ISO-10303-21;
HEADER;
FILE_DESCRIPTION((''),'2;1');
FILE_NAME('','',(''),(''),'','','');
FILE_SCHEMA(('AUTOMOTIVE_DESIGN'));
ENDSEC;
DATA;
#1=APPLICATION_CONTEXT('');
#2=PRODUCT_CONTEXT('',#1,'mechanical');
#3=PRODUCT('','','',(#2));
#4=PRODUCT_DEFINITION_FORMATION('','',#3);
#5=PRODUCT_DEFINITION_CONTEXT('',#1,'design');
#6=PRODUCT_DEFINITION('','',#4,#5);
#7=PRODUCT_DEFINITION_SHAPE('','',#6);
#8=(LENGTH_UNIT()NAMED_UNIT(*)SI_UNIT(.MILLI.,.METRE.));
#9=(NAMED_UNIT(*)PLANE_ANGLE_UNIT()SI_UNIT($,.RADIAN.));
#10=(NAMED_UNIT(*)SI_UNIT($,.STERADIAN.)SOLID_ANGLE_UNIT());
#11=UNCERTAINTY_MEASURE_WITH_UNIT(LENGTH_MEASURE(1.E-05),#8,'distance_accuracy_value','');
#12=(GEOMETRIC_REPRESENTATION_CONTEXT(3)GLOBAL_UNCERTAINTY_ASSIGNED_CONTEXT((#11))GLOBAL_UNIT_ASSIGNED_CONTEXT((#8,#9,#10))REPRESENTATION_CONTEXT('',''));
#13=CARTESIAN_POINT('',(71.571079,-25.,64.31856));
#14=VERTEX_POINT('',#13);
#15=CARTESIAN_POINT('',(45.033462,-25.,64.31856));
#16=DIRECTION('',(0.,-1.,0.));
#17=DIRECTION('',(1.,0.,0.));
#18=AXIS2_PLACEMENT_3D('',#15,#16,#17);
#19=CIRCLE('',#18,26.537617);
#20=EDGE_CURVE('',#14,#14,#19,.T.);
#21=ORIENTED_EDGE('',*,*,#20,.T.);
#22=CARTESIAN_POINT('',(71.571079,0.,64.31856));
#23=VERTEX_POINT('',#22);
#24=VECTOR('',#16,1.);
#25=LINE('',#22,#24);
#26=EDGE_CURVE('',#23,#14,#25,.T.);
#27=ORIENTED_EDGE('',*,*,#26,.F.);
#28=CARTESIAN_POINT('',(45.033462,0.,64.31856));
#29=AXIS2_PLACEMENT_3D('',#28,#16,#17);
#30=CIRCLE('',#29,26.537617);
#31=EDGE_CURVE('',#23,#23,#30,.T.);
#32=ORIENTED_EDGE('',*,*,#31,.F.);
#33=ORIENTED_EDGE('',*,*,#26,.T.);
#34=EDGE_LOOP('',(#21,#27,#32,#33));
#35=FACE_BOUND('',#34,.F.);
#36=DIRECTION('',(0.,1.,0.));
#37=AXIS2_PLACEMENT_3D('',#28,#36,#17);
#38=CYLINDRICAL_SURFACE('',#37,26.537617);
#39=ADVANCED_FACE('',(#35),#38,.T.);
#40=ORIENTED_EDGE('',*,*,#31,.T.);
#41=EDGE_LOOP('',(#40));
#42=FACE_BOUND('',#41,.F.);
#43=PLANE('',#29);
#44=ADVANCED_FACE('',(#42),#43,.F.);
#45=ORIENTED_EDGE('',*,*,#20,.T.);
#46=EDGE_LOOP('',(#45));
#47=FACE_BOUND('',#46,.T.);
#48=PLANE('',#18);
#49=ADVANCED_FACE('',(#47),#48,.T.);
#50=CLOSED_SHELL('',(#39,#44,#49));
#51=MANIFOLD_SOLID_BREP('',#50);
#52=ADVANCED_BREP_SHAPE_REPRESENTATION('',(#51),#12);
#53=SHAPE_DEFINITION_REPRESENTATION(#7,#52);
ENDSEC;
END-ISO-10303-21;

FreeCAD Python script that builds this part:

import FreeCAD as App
import Part
import Sketcher
Q = App.Units.Quantity


def add_polygon(sketch, points):
    """Adds a closed chain of lines whose ends are joined by coincident constraints."""
    first, n = sketch.GeometryCount, len(points)
    for a, b in zip(points, points[1:] + points[:1]):
        sketch.addGeometry(Part.LineSegment(App.Vector(*a, 0), App.Vector(*b, 0)), False)
    for i in range(n):
        sketch.addConstraint(Sketcher.Constraint("Coincident", first + i, 2, first + (i + 1) % n, 1))

doc = App.newDocument("Part")
params = doc.addObject("Spreadsheet::Sheet", "Params")
for row, (alias, value) in enumerate([
    ("pad1_length", "25 mm"),
    ("pad2_length", "25 mm"),
], start=1):
    params.set(f"A{row}", alias)
    params.set(f"B{row}", "=" + value)
    params.setAlias(f"B{row}", alias)

body = doc.addObject("PartDesign::Body", "Body")

# Sketch on XZ plane
sketch1 = body.newObject("Sketcher::SketchObject", "Sketch")
sketch1.AttachmentSupport = (doc.getObject("XZ_Plane"), [""])
sketch1.MapMode = "FlatFace"
add_polygon(sketch1, [(-136, 52), (-136, 0), (-70, 0), (-70, 52)])  # lines 0-3
sketch1.addConstraint(Sketcher.Constraint("Vertical", 0))
sketch1.addConstraint(Sketcher.Constraint("Horizontal", 1))
sketch1.addConstraint(Sketcher.Constraint("Vertical", 2))
sketch1.addConstraint(Sketcher.Constraint("Horizontal", 3))
sketch1.addConstraint(Sketcher.Constraint("PointOnObject", 0, 2, -1))
sketch1.addConstraint(Sketcher.Constraint("DistanceX", 1, 1, 1, 2, Q("66.362545 mm")))
sketch1.addConstraint(Sketcher.Constraint("DistanceY", 0, 2, 0, 1, Q("52.238293 mm")))
sketch1.addConstraint(Sketcher.Constraint("DistanceX", 1, 2, -1, 1, Q("70.133209 mm")))
pad1 = body.newObject("PartDesign::Pad", "Pad")
pad1.Profile = sketch1
pad1.setExpression("Length", "Params.pad1_length")
body2 = doc.addObject("PartDesign::Body", "Body001")

# Sketch on XZ plane
sketch2 = body2.newObject("Sketcher::SketchObject", "Sketch001")
sketch2.AttachmentSupport = (doc.getObject("XZ_Plane001"), [""])
sketch2.MapMode = "FlatFace"
sketch2.addGeometry(Part.Circle(App.Vector(45, 64, 0), App.Vector(0, 0, 1), 27), False)
sketch2.addConstraint(Sketcher.Constraint("Diameter", 0, Q("53.075233 mm")))
sketch2.addConstraint(Sketcher.Constraint("DistanceY", -1, 1, 0, 3, Q("64.31856 mm")))
sketch2.addConstraint(Sketcher.Constraint("DistanceX", -1, 1, 0, 3, Q("45.033462 mm")))
pad2 = body2.newObject("PartDesign::Pad", "Pad001")
pad2.Profile = sketch2
pad2.setExpression("Length", "Params.pad2_length")
body.Visibility = False

doc.recompute()
